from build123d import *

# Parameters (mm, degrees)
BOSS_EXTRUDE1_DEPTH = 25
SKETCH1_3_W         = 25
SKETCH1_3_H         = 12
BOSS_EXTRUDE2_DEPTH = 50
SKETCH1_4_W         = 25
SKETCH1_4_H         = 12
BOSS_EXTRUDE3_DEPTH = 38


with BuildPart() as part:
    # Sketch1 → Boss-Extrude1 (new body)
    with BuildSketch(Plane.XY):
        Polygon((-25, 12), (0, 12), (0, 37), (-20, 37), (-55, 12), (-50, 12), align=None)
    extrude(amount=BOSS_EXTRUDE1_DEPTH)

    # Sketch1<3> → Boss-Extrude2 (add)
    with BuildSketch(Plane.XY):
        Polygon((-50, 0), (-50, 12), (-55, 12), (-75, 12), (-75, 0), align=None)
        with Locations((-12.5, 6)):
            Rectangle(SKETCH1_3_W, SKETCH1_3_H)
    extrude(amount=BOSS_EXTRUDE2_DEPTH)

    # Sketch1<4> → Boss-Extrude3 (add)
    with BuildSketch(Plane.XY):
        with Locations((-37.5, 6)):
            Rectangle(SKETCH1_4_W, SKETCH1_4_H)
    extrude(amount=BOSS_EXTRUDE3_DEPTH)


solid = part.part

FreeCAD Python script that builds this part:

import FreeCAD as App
import Part
import Sketcher

V = App.Vector


def add_polygon(sketch, points):
    """Adds a closed chain of lines whose ends are joined by coincident constraints."""
    first, n = sketch.GeometryCount, len(points)
    for a, b in zip(points, points[1:] + points[:1]):
        sketch.addGeometry(Part.LineSegment(App.Vector(*a, 0), App.Vector(*b, 0)), False)
    for i in range(n):
        sketch.addConstraint(Sketcher.Constraint("Coincident", first + i, 2, first + (i + 1) % n, 1))

doc = App.newDocument("Part")
body = doc.addObject("PartDesign::Body", "Body")

sketch1 = body.newObject("Sketcher::SketchObject", "Sketch")
sketch1.AttachmentSupport = (doc.getObject("XY_Plane"), [""])
sketch1.MapMode = "FlatFace"
add_polygon(sketch1, [(0, 12), (0, 37), (-20, 37), (-55, 12)])
sketch1.addConstraint([
    Sketcher.Constraint("Vertical", 0),
    Sketcher.Constraint("Horizontal", 1),
    Sketcher.Constraint("Horizontal", 3),
    Sketcher.Constraint("PointOnObject", 0, 2, -2),
    Sketcher.Constraint("DistanceX", 1, 2, 1, 1, 20.0),
    Sketcher.Constraint("DistanceX", 3, 1, 3, 2, 55.0),
    Sketcher.Constraint("DistanceY", 0, 1, 0, 2, 25.0),
    Sketcher.Constraint("DistanceY", -1, 1, 0, 2, 37.0),
])
pad1 = body.newObject("PartDesign::Pad", "Pad")
pad1.Profile = sketch1
pad1.Length = 25

sketch2 = body.newObject("Sketcher::SketchObject", "Sketch001")
sketch2.AttachmentSupport = (doc.getObject("XY_Plane"), [""])
sketch2.MapMode = "FlatFace"
add_polygon(sketch2, [(-50, 0), (-50, 12), (-75, 12), (-75, 0)])
add_polygon(sketch2, [(-25, 12), (-25, 0), (0, 0), (0, 12)])
sketch2.addConstraint([
    Sketcher.Constraint("Vertical", 0),
    Sketcher.Constraint("Horizontal", 1),
    Sketcher.Constraint("Vertical", 2),
    Sketcher.Constraint("Horizontal", 3),
    Sketcher.Constraint("Vertical", 4),
    Sketcher.Constraint("Horizontal", 5),
    Sketcher.Constraint("Vertical", 6),
    Sketcher.Constraint("Horizontal", 7),
    Sketcher.Constraint("Coincident", 5, 2, -1, 1),
    Sketcher.Constraint("PointOnObject", 2, 2, -1),
    Sketcher.Constraint("Horizontal", 1, 2, 6, 2),
    Sketcher.Constraint("Equal", 3, 5),
    Sketcher.Constraint("DistanceX", 1, 2, 1, 1, 25.0),
    Sketcher.Constraint("DistanceY", 0, 1, 0, 2, 12.0),
    Sketcher.Constraint("DistanceX", 0, 2, -1, 1, 50.0),
])
pad2 = body.newObject("PartDesign::Pad", "Pad001")
pad2.Profile = sketch2
pad2.Length = 50

sketch3 = body.newObject("Sketcher::SketchObject", "Sketch002")
sketch3.AttachmentSupport = (doc.getObject("XY_Plane"), [""])
sketch3.MapMode = "FlatFace"
add_polygon(sketch3, [(-50, 12), (-50, 0), (-25, 0), (-25, 12)])
sketch3.addConstraint([
    Sketcher.Constraint("Vertical", 0),
    Sketcher.Constraint("Horizontal", 1),
    Sketcher.Constraint("Vertical", 2),
    Sketcher.Constraint("Horizontal", 3),
    Sketcher.Constraint("PointOnObject", 0, 2, -1),
    Sketcher.Constraint("DistanceX", 1, 1, 1, 2, 25.0),
    Sketcher.Constraint("DistanceY", 0, 2, 0, 1, 12.0),
    Sketcher.Constraint("DistanceX", 0, 2, -1, 1, 50.0),
])
pad3 = body.newObject("PartDesign::Pad", "Pad002")
pad3.Profile = sketch3
pad3.Length = 38

doc.recompute()
